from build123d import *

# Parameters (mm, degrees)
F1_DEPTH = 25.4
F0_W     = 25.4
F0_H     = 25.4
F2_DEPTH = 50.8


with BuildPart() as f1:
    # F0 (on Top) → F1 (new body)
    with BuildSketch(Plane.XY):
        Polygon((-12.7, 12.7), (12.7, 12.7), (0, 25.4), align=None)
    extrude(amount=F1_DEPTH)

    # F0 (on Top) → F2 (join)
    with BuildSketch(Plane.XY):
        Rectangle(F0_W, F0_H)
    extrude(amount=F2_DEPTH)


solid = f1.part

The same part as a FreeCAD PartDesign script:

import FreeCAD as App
import Part
import Sketcher

V = App.Vector
Q = App.Units.Quantity


def add_polygon(sketch, points):
    """Adds a closed chain of lines whose ends are joined by coincident constraints."""
    first, n = sketch.GeometryCount, len(points)
    for a, b in zip(points, points[1:] + points[:1]):
        sketch.addGeometry(Part.LineSegment(App.Vector(*a, 0), App.Vector(*b, 0)), False)
    for i in range(n):
        sketch.addConstraint(Sketcher.Constraint("Coincident", first + i, 2, first + (i + 1) % n, 1))

doc = App.newDocument("Part")
body = doc.addObject("PartDesign::Body", "Body")

sketch1 = body.newObject("Sketcher::SketchObject", "Sketch")
sketch1.AttachmentSupport = (doc.getObject("XY_Plane"), [""])
sketch1.MapMode = "FlatFace"
add_polygon(sketch1, [(-13, 13), (13, 13), (0, 25)])
sketch1.addConstraint([
    Sketcher.Constraint("Horizontal", 0),
    Sketcher.Constraint("PointOnObject", 1, 2, -2),
    Sketcher.Constraint("Perpendicular", 1, 2),
    Sketcher.Constraint("Equal", 1, 2),
    Sketcher.Constraint("DistanceX", 0, 1, 0, 2, Q("1 in")),
    Sketcher.Constraint("DistanceY", -1, 1, 1, 2, Q("1 in")),
])
pad1 = body.newObject("PartDesign::Pad", "Pad")
pad1.Profile = sketch1
pad1.Length = Q("1 in")

sketch2 = body.newObject("Sketcher::SketchObject", "Sketch001")
sketch2.AttachmentSupport = (doc.getObject("XY_Plane"), [""])
sketch2.MapMode = "FlatFace"
add_polygon(sketch2, [(-13, 13), (-13, -13), (13, -13), (13, 13)])
sketch2.addConstraint([
    Sketcher.Constraint("Vertical", 0),
    Sketcher.Constraint("Horizontal", 1),
    Sketcher.Constraint("Vertical", 2),
    Sketcher.Constraint("Horizontal", 3),
    Sketcher.Constraint("Symmetric", 0, 2, 2, 2, -1, 1),
    Sketcher.Constraint("Equal", 3, 0),
    Sketcher.Constraint("DistanceX", 1, 1, 1, 2, Q("1 in")),
])
pad2 = body.newObject("PartDesign::Pad", "Pad001")
pad2.Profile = sketch2
pad2.Length = Q("2 in")

doc.recompute()
